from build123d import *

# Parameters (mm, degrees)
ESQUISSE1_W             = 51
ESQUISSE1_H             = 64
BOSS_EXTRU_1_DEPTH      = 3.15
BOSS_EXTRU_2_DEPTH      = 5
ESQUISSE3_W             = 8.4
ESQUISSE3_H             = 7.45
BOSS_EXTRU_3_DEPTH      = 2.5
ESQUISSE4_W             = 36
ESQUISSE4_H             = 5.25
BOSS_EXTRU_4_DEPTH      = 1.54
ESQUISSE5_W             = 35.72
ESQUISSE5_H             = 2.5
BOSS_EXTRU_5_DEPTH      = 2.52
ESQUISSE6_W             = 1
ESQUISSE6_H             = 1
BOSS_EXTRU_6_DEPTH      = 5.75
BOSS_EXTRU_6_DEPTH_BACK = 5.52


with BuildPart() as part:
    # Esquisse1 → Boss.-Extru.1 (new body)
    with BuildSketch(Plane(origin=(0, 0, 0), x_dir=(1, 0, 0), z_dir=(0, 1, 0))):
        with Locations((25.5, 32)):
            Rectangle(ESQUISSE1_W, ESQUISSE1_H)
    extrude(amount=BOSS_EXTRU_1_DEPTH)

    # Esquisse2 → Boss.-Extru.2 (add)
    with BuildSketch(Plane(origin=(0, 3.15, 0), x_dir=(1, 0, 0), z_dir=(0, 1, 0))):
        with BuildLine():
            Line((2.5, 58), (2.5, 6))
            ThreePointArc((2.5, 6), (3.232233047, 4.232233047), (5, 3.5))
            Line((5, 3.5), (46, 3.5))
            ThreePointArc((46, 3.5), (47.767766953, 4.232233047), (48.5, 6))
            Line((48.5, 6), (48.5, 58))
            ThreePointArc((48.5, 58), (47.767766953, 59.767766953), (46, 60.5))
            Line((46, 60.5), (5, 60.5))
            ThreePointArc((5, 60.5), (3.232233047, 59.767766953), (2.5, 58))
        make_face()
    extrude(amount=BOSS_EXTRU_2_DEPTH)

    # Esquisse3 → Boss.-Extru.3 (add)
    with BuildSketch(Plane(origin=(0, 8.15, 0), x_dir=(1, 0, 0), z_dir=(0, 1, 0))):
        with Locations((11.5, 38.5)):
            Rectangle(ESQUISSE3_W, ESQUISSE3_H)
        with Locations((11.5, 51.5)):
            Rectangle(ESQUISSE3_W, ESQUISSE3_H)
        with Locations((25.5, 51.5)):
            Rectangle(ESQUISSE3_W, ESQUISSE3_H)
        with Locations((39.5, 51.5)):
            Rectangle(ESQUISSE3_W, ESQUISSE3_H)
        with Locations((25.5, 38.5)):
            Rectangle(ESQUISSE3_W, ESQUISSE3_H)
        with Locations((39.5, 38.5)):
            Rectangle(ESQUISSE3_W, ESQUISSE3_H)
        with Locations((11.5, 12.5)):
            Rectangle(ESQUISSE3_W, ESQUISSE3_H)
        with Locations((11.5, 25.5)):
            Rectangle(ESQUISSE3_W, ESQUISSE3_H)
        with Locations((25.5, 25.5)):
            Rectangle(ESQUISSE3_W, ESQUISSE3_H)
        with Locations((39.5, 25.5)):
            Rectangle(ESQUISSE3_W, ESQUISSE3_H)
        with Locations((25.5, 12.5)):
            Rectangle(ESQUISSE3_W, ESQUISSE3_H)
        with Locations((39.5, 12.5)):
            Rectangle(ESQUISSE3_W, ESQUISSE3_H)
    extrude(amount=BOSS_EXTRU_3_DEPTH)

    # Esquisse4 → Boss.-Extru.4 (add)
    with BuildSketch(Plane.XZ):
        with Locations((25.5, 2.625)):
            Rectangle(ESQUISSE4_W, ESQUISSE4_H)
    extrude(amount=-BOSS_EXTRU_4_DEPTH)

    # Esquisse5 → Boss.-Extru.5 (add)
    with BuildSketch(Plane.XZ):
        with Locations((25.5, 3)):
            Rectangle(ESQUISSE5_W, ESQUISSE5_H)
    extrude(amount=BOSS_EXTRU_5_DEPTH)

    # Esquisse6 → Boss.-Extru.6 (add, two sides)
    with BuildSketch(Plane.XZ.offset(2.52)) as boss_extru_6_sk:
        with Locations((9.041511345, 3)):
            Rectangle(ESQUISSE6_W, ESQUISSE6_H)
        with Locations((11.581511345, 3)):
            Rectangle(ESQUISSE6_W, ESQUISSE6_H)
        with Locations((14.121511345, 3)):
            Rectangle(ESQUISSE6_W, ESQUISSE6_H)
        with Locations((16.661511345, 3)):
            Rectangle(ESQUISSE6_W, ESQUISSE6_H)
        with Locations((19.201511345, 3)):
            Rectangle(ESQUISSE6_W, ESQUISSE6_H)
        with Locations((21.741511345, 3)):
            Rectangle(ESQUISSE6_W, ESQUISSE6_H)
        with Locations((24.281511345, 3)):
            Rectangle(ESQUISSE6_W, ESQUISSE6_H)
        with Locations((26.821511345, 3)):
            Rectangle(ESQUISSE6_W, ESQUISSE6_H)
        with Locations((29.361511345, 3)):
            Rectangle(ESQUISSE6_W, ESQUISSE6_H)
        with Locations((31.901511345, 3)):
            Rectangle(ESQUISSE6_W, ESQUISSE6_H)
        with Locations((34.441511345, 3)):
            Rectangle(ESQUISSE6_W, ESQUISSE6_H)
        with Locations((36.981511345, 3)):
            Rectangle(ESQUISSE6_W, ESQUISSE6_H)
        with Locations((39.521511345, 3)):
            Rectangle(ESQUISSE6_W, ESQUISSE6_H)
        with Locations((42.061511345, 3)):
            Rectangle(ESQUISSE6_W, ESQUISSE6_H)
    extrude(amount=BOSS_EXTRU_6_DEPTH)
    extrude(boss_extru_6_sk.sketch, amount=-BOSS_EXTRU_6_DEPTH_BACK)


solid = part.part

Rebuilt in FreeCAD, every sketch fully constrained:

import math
import FreeCAD as App
import Part
import Sketcher

V = App.Vector


def add_polygon(sketch, points):
    """Adds a closed chain of lines whose ends are joined by coincident constraints."""
    first, n = sketch.GeometryCount, len(points)
    for a, b in zip(points, points[1:] + points[:1]):
        sketch.addGeometry(Part.LineSegment(App.Vector(*a, 0), App.Vector(*b, 0)), False)
    for i in range(n):
        sketch.addConstraint(Sketcher.Constraint("Coincident", first + i, 2, first + (i + 1) % n, 1))

doc = App.newDocument("Part")
body = doc.addObject("PartDesign::Body", "Body")

# Sketch on XZ plane
sketch1 = body.newObject("Sketcher::SketchObject", "Sketch")
sketch1.AttachmentSupport = (doc.getObject("XZ_Plane"), [""])
sketch1.MapMode = "FlatFace"
add_polygon(sketch1, [(0, -64), (0, 0), (51, 0), (51, -64)])  # lines 0-3
sketch1.addConstraint([
    Sketcher.Constraint("Vertical", 0),
    Sketcher.Constraint("Horizontal", 1),
    Sketcher.Constraint("Vertical", 2),
    Sketcher.Constraint("Horizontal", 3),
    Sketcher.Constraint("Coincident", 0, 2, -1, 1),
    Sketcher.Constraint("DistanceX", 1, 1, 1, 2, 51.0),
    Sketcher.Constraint("DistanceY", 0, 1, 0, 2, 64.0),
])
pad1 = body.newObject("PartDesign::Pad", "Pad")
pad1.Profile = sketch1
pad1.Length = 3.15
pad1.Reversed = True

# Sketch on XZ plane
sketch2 = body.newObject("Sketcher::SketchObject", "Sketch001")
sketch2.AttachmentSupport = (doc.getObject("XZ_Plane"), [""])
sketch2.MapMode = "FlatFace"
sketch2.AttachmentOffset = App.Placement(V(0, 0, -3.15), App.Rotation())
sketch2.addGeometry([
    Part.LineSegment(V(2.5, -58, 0), V(2.5, -6, 0)),  # 0
    Part.ArcOfCircle(Part.Circle(V(5, -6, 0), V(0, 0, 1), 2.5), math.radians(90), math.radians(180)),  # 1
    Part.LineSegment(V(5, -3.5, 0), V(46, -3.5, 0)),  # 2
    Part.ArcOfCircle(Part.Circle(V(46, -6, 0), V(0, 0, 1), 2.5), math.radians(0), math.radians(90)),  # 3
    Part.LineSegment(V(48.5, -6, 0), V(48.5, -58, 0)),  # 4
    Part.ArcOfCircle(Part.Circle(V(46, -58, 0), V(0, 0, 1), 2.5), math.radians(-90), math.radians(0)),  # 5
    Part.LineSegment(V(46, -60.5, 0), V(5, -60.5, 0)),  # 6
    Part.ArcOfCircle(Part.Circle(V(5, -58, 0), V(0, 0, 1), 2.5), math.radians(180), math.radians(270)),  # 7
], False)
sketch2.addConstraint([
    Sketcher.Constraint("Tangent", 0, 2, 1, 2),
    Sketcher.Constraint("Tangent", 1, 1, 2, 1),
    Sketcher.Constraint("Tangent", 2, 2, 3, 2),
    Sketcher.Constraint("Tangent", 3, 1, 4, 1),
    Sketcher.Constraint("Tangent", 4, 2, 5, 2),
    Sketcher.Constraint("Tangent", 5, 1, 6, 1),
    Sketcher.Constraint("Tangent", 6, 2, 7, 2),
    Sketcher.Constraint("Tangent", 7, 1, 0, 1),
    Sketcher.Constraint("Vertical", 0),
    Sketcher.Constraint("Horizontal", 2),
    Sketcher.Constraint("Vertical", 4),
    Sketcher.Constraint("Horizontal", 6),
    Sketcher.Constraint("Equal", 1, 3),
    Sketcher.Constraint("Equal", 3, 5),
    Sketcher.Constraint("Equal", 5, 7),
    Sketcher.Constraint("Radius", 1, 2.5),
    Sketcher.Constraint("DistanceX", 2, 1, 2, 2, 41.0),
    Sketcher.Constraint("DistanceY", 0, 1, 0, 2, 52.0),
    Sketcher.Constraint("DistanceX", -1, 1, 1, 3, 5.0),
    Sketcher.Constraint("DistanceY", 1, 3, -1, 1, 6.0),
])
pad2 = body.newObject("PartDesign::Pad", "Pad001")
pad2.Profile = sketch2
pad2.Length = 5
pad2.Reversed = True

# Sketch on XZ plane
sketch3 = body.newObject("Sketcher::SketchObject", "Sketch002")
sketch3.AttachmentSupport = (doc.getObject("XZ_Plane"), [""])
sketch3.MapMode = "FlatFace"
sketch3.AttachmentOffset = App.Placement(V(0, 0, -8.15), App.Rotation())
add_polygon(sketch3, [(7, -42), (7, -35), (16, -35), (16, -42)])  # lines 0-3
add_polygon(sketch3, [(7, -55), (7, -48), (16, -48), (16, -55)])  # lines 4-7
add_polygon(sketch3, [(21, -55), (21, -48), (30, -48), (30, -55)])  # lines 8-11
add_polygon(sketch3, [(35, -55), (35, -48), (44, -48), (44, -55)])  # lines 12-15
add_polygon(sketch3, [(21, -42), (21, -35), (30, -35), (30, -42)])  # lines 16-19
add_polygon(sketch3, [(35, -42), (35, -35), (44, -35), (44, -42)])  # lines 20-23
add_polygon(sketch3, [(7, -16), (7, -9), (16, -9), (16, -16)])  # lines 24-27
add_polygon(sketch3, [(7, -29), (7, -22), (16, -22), (16, -29)])  # lines 28-31
add_polygon(sketch3, [(21, -29), (21, -22), (30, -22), (30, -29)])  # lines 32-35
add_polygon(sketch3, [(35, -29), (35, -22), (44, -22), (44, -29)])  # lines 36-39
add_polygon(sketch3, [(21, -16), (21, -9), (30, -9), (30, -16)])  # lines 40-43
add_polygon(sketch3, [(35, -16), (35, -9), (44, -9), (44, -16)])  # lines 44-47
sketch3.addConstraint([
    Sketcher.Constraint("Vertical", 0),
    Sketcher.Constraint("Horizontal", 1),
    Sketcher.Constraint("Vertical", 2),
    Sketcher.Constraint("Horizontal", 3),
    Sketcher.Constraint("Vertical", 4),
    Sketcher.Constraint("Horizontal", 5),
    Sketcher.Constraint("Vertical", 6),
    Sketcher.Constraint("Horizontal", 7),
    Sketcher.Constraint("Vertical", 8),
    Sketcher.Constraint("Horizontal", 9),
    Sketcher.Constraint("Vertical", 10),
    Sketcher.Constraint("Horizontal", 11),
    Sketcher.Constraint("Vertical", 12),
    Sketcher.Constraint("Horizontal", 13),
    Sketcher.Constraint("Vertical", 14),
    Sketcher.Constraint("Horizontal", 15),
    Sketcher.Constraint("Vertical", 16),
    Sketcher.Constraint("Horizontal", 17),
    Sketcher.Constraint("Vertical", 18),
    Sketcher.Constraint("Horizontal", 19),
    Sketcher.Constraint("Vertical", 20),
    Sketcher.Constraint("Horizontal", 21),
    Sketcher.Constraint("Vertical", 22),
    Sketcher.Constraint("Horizontal", 23),
    Sketcher.Constraint("Vertical", 24),
    Sketcher.Constraint("Horizontal", 25),
    Sketcher.Constraint("Vertical", 26),
    Sketcher.Constraint("Horizontal", 27),
    Sketcher.Constraint("Vertical", 28),
    Sketcher.Constraint("Horizontal", 29),
    Sketcher.Constraint("Vertical", 30),
    Sketcher.Constraint("Horizontal", 31),
    Sketcher.Constraint("Vertical", 32),
    Sketcher.Constraint("Horizontal", 33),
    Sketcher.Constraint("Vertical", 34),
    Sketcher.Constraint("Horizontal", 35),
    Sketcher.Constraint("Vertical", 36),
    Sketcher.Constraint("Horizontal", 37),
    Sketcher.Constraint("Vertical", 38),
    Sketcher.Constraint("Horizontal", 39),
    Sketcher.Constraint("Vertical", 40),
    Sketcher.Constraint("Horizontal", 41),
    Sketcher.Constraint("Vertical", 42),
    Sketcher.Constraint("Horizontal", 43),
    Sketcher.Constraint("Vertical", 44),
    Sketcher.Constraint("Horizontal", 45),
    Sketcher.Constraint("Vertical", 46),
    Sketcher.Constraint("Horizontal", 47),
    Sketcher.Constraint("Horizontal", 5, 2, 8, 2),
    Sketcher.Constraint("Horizontal", 7, 2, 10, 2),
    Sketcher.Constraint("Horizontal", 9, 2, 12, 2),
    Sketcher.Constraint("Horizontal", 11, 2, 14, 2),
    Sketcher.Constraint("Horizontal", 1, 2, 16, 2),
    Sketcher.Constraint("Horizontal", 3, 2, 18, 2),
    Sketcher.Constraint("Horizontal", 17, 2, 20, 2),
    Sketcher.Constraint("Horizontal", 19, 2, 22, 2),
    Sketcher.Constraint("Horizontal", 29, 2, 32, 2),
    Sketcher.Constraint("Horizontal", 31, 2, 34, 2),
    Sketcher.Constraint("Horizontal", 33, 2, 36, 2),
    Sketcher.Constraint("Horizontal", 35, 2, 38, 2),
    Sketcher.Constraint("Horizontal", 25, 2, 40, 2),
    Sketcher.Constraint("Horizontal", 27, 2, 42, 2),
    Sketcher.Constraint("Horizontal", 41, 2, 44, 2),
    Sketcher.Constraint("Horizontal", 43, 2, 46, 2),
    Sketcher.Constraint("Vertical", 3, 2, 4, 2),
    Sketcher.Constraint("Vertical", 2, 2, 5, 2),
    Sketcher.Constraint("Vertical", 11, 2, 16, 2),
    Sketcher.Constraint("Vertical", 10, 2, 17, 2),
    Sketcher.Constraint("Vertical", 15, 2, 20, 2),
    Sketcher.Constraint("Vertical", 14, 2, 21, 2),
    Sketcher.Constraint("Vertical", 7, 2, 24, 2),
    Sketcher.Constraint("Vertical", 6, 2, 25, 2),
    Sketcher.Constraint("Vertical", 27, 2, 28, 2),
    Sketcher.Constraint("Vertical", 26, 2, 29, 2),
    Sketcher.Constraint("Vertical", 19, 2, 32, 2),
    Sketcher.Constraint("Vertical", 18, 2, 33, 2),
    Sketcher.Constraint("Vertical", 23, 2, 36, 2),
    Sketcher.Constraint("Vertical", 22, 2, 37, 2),
    Sketcher.Constraint("Vertical", 35, 2, 40, 2),
    Sketcher.Constraint("Vertical", 34, 2, 41, 2),
    Sketcher.Constraint("Vertical", 39, 2, 44, 2),
    Sketcher.Constraint("Vertical", 38, 2, 45, 2),
    Sketcher.Constraint("Equal", 7, 9),
    Sketcher.Constraint("Equal", 11, 13),
    Sketcher.Constraint("Equal", 2, 4),
    Sketcher.Constraint("Equal", 22, 24),
    Sketcher.Constraint("Equal", 26, 28),
    Sketcher.Constraint("DistanceX", 1, 1, 1, 2, 8.4),
    Sketcher.Constraint("DistanceY", 4, 2, 0, 2, 13.0),
    Sketcher.Constraint("DistanceX", 4, 2, 8, 2, 14.0),
    Sketcher.Constraint("DistanceX", 8, 2, 12, 2, 14.0),
    Sketcher.Constraint("DistanceY", 0, 2, 24, 2, 26.0),
    Sketcher.Constraint("DistanceY", 28, 2, 24, 2, 13.0),
    Sketcher.Constraint("DistanceY", 0, 1, 0, 2, 7.45),
    Sketcher.Constraint("DistanceX", -1, 1, 0, 2, 7.3),
    Sketcher.Constraint("DistanceY", 0, 2, -1, 1, 34.775),
])
pad3 = body.newObject("PartDesign::Pad", "Pad002")
pad3.Profile = sketch3
pad3.Length = 2.5
pad3.Reversed = True

# Sketch on XZ plane
sketch4 = body.newObject("Sketcher::SketchObject", "Sketch003")
sketch4.AttachmentSupport = (doc.getObject("XZ_Plane"), [""])
sketch4.MapMode = "FlatFace"
add_polygon(sketch4, [(8, 5), (8, 0), (44, 0), (44, 5)])  # lines 0-3
sketch4.addConstraint([
    Sketcher.Constraint("Vertical", 0),
    Sketcher.Constraint("Horizontal", 1),
    Sketcher.Constraint("Vertical", 2),
    Sketcher.Constraint("Horizontal", 3),
    Sketcher.Constraint("PointOnObject", 0, 2, -1),
    Sketcher.Constraint("DistanceX", 1, 1, 1, 2, 36.0),
    Sketcher.Constraint("DistanceY", 0, 2, 0, 1, 5.25),
    Sketcher.Constraint("DistanceX", -1, 1, 0, 2, 7.5),
])
pad4 = body.newObject("PartDesign::Pad", "Pad003")
pad4.Profile = sketch4
pad4.Length = 1.54
pad4.Reversed = True

# Sketch on XZ plane
sketch5 = body.newObject("Sketcher::SketchObject", "Sketch004")
sketch5.AttachmentSupport = (doc.getObject("XZ_Plane"), [""])
sketch5.MapMode = "FlatFace"
add_polygon(sketch5, [(7.6, 4.2), (7.6, 1.8), (43.4, 1.8), (43.4, 4.2)])  # lines 0-3
sketch5.addConstraint([
    Sketcher.Constraint("Vertical", 0),
    Sketcher.Constraint("Horizontal", 1),
    Sketcher.Constraint("Vertical", 2),
    Sketcher.Constraint("Horizontal", 3),
    Sketcher.Constraint("DistanceY", 0, 2, 0, 1, 2.5),
    Sketcher.Constraint("DistanceX", 1, 1, 1, 2, 35.72),
    Sketcher.Constraint("DistanceX", -1, 1, 0, 2, 7.64),
    Sketcher.Constraint("DistanceY", -1, 1, 0, 2, 1.75),
])
pad5 = body.newObject("PartDesign::Pad", "Pad004")
pad5.Profile = sketch5
pad5.Length = 2.52

# Sketch on XZ plane
sketch6 = body.newObject("Sketcher::SketchObject", "Sketch005")
sketch6.AttachmentSupport = (doc.getObject("XZ_Plane"), [""])
sketch6.MapMode = "FlatFace"
sketch6.AttachmentOffset = App.Placement(V(0, 0, 2.52), App.Rotation())
add_polygon(sketch6, [(8.5, 3.5), (8.5, 2.5), (9.5, 2.5), (9.5, 3.5)])  # lines 0-3
add_polygon(sketch6, [(11.1, 3.5), (11.1, 2.5), (12.1, 2.5), (12.1, 3.5)])  # lines 4-7
add_polygon(sketch6, [(13.6, 3.5), (13.6, 2.5), (14.6, 2.5), (14.6, 3.5)])  # lines 8-11
add_polygon(sketch6, [(16.2, 3.5), (16.2, 2.5), (17.2, 2.5), (17.2, 3.5)])  # lines 12-15
add_polygon(sketch6, [(18.7, 3.5), (18.7, 2.5), (19.7, 2.5), (19.7, 3.5)])  # lines 16-19
add_polygon(sketch6, [(21.2, 3.5), (21.2, 2.5), (22.2, 2.5), (22.2, 3.5)])  # lines 20-23
add_polygon(sketch6, [(23.8, 3.5), (23.8, 2.5), (24.8, 2.5), (24.8, 3.5)])  # lines 24-27
add_polygon(sketch6, [(26.3, 3.5), (26.3, 2.5), (27.3, 2.5), (27.3, 3.5)])  # lines 28-31
add_polygon(sketch6, [(28.9, 3.5), (28.9, 2.5), (29.9, 2.5), (29.9, 3.5)])  # lines 32-35
add_polygon(sketch6, [(31.4, 3.5), (31.4, 2.5), (32.4, 2.5), (32.4, 3.5)])  # lines 36-39
add_polygon(sketch6, [(33.9, 3.5), (33.9, 2.5), (34.9, 2.5), (34.9, 3.5)])  # lines 40-43
add_polygon(sketch6, [(36.5, 3.5), (36.5, 2.5), (37.5, 2.5), (37.5, 3.5)])  # lines 44-47
add_polygon(sketch6, [(39, 3.5), (39, 2.5), (40, 2.5), (40, 3.5)])  # lines 48-51
add_polygon(sketch6, [(41.6, 3.5), (41.6, 2.5), (42.6, 2.5), (42.6, 3.5)])  # lines 52-55
sketch6.addConstraint([
    Sketcher.Constraint("Vertical", 0),
    Sketcher.Constraint("Horizontal", 1),
    Sketcher.Constraint("Vertical", 2),
    Sketcher.Constraint("Horizontal", 3),
    Sketcher.Constraint("Vertical", 4),
    Sketcher.Constraint("Horizontal", 5),
    Sketcher.Constraint("Vertical", 6),
    Sketcher.Constraint("Horizontal", 7),
    Sketcher.Constraint("Vertical", 8),
    Sketcher.Constraint("Horizontal", 9),
    Sketcher.Constraint("Vertical", 10),
    Sketcher.Constraint("Horizontal", 11),
    Sketcher.Constraint("Vertical", 12),
    Sketcher.Constraint("Horizontal", 13),
    Sketcher.Constraint("Vertical", 14),
    Sketcher.Constraint("Horizontal", 15),
    Sketcher.Constraint("Vertical", 16),
    Sketcher.Constraint("Horizontal", 17),
    Sketcher.Constraint("Vertical", 18),
    Sketcher.Constraint("Horizontal", 19),
    Sketcher.Constraint("Vertical", 20),
    Sketcher.Constraint("Horizontal", 21),
    Sketcher.Constraint("Vertical", 22),
    Sketcher.Constraint("Horizontal", 23),
    Sketcher.Constraint("Vertical", 24),
    Sketcher.Constraint("Horizontal", 25),
    Sketcher.Constraint("Vertical", 26),
    Sketcher.Constraint("Horizontal", 27),
    Sketcher.Constraint("Vertical", 28),
    Sketcher.Constraint("Horizontal", 29),
    Sketcher.Constraint("Vertical", 30),
    Sketcher.Constraint("Horizontal", 31),
    Sketcher.Constraint("Vertical", 32),
    Sketcher.Constraint("Horizontal", 33),
    Sketcher.Constraint("Vertical", 34),
    Sketcher.Constraint("Horizontal", 35),
    Sketcher.Constraint("Vertical", 36),
    Sketcher.Constraint("Horizontal", 37),
    Sketcher.Constraint("Vertical", 38),
    Sketcher.Constraint("Horizontal", 39),
    Sketcher.Constraint("Vertical", 40),
    Sketcher.Constraint("Horizontal", 41),
    Sketcher.Constraint("Vertical", 42),
    Sketcher.Constraint("Horizontal", 43),
    Sketcher.Constraint("Vertical", 44),
    Sketcher.Constraint("Horizontal", 45),
    Sketcher.Constraint("Vertical", 46),
    Sketcher.Constraint("Horizontal", 47),
    Sketcher.Constraint("Vertical", 48),
    Sketcher.Constraint("Horizontal", 49),
    Sketcher.Constraint("Vertical", 50),
    Sketcher.Constraint("Horizontal", 51),
    Sketcher.Constraint("Vertical", 52),
    Sketcher.Constraint("Horizontal", 53),
    Sketcher.Constraint("Vertical", 54),
    Sketcher.Constraint("Horizontal", 55),
    Sketcher.Constraint("Horizontal", 1, 2, 4, 2),
    Sketcher.Constraint("Horizontal", 3, 2, 6, 2),
    Sketcher.Constraint("Horizontal", 5, 2, 8, 2),
    Sketcher.Constraint("Horizontal", 7, 2, 10, 2),
    Sketcher.Constraint("Horizontal", 9, 2, 12, 2),
    Sketcher.Constraint("Horizontal", 11, 2, 14, 2),
    Sketcher.Constraint("Horizontal", 13, 2, 16, 2),
    Sketcher.Constraint("Horizontal", 15, 2, 18, 2),
    Sketcher.Constraint("Horizontal", 17, 2, 20, 2),
    Sketcher.Constraint("Horizontal", 19, 2, 22, 2),
    Sketcher.Constraint("Horizontal", 21, 2, 24, 2),
    Sketcher.Constraint("Horizontal", 23, 2, 26, 2),
    Sketcher.Constraint("Horizontal", 25, 2, 28, 2),
    Sketcher.Constraint("Horizontal", 27, 2, 30, 2),
    Sketcher.Constraint("Horizontal", 29, 2, 32, 2),
    Sketcher.Constraint("Horizontal", 31, 2, 34, 2),
    Sketcher.Constraint("Horizontal", 33, 2, 36, 2),
    Sketcher.Constraint("Horizontal", 35, 2, 38, 2),
    Sketcher.Constraint("Horizontal", 37, 2, 40, 2),
    Sketcher.Constraint("Horizontal", 39, 2, 42, 2),
    Sketcher.Constraint("Horizontal", 41, 2, 44, 2),
    Sketcher.Constraint("Horizontal", 43, 2, 46, 2),
    Sketcher.Constraint("Horizontal", 45, 2, 48, 2),
    Sketcher.Constraint("Horizontal", 47, 2, 50, 2),
    Sketcher.Constraint("Horizontal", 49, 2, 52, 2),
    Sketcher.Constraint("Horizontal", 51, 2, 54, 2),
    Sketcher.Constraint("Equal", 3, 5),
    Sketcher.Constraint("Equal", 7, 9),
    Sketcher.Constraint("Equal", 11, 13),
    Sketcher.Constraint("Equal", 15, 17),
    Sketcher.Constraint("Equal", 19, 21),
    Sketcher.Constraint("Equal", 23, 25),
    Sketcher.Constraint("Equal", 27, 29),
    Sketcher.Constraint("Equal", 31, 33),
    Sketcher.Constraint("Equal", 35, 37),
    Sketcher.Constraint("Equal", 39, 41),
    Sketcher.Constraint("Equal", 43, 45),
    Sketcher.Constraint("Equal", 47, 49),
    Sketcher.Constraint("Equal", 51, 53),
    Sketcher.Constraint("Equal", 55, 0),
    Sketcher.Constraint("DistanceX", 1, 1, 1, 2, 1.0),
    Sketcher.Constraint("DistanceY", -1, 1, 0, 2, 2.5),
    Sketcher.Constraint("DistanceX", 1, 2, 4, 2, 1.54),
    Sketcher.Constraint("DistanceX", 5, 2, 8, 2, 1.54),
    Sketcher.Constraint("DistanceX", 9, 2, 12, 2, 1.54),
    Sketcher.Constraint("DistanceX", 13, 2, 16, 2, 1.54),
    Sketcher.Constraint("DistanceX", 17, 2, 20, 2, 1.54),
    Sketcher.Constraint("DistanceX", 21, 2, 24, 2, 1.54),
    Sketcher.Constraint("DistanceX", 25, 2, 28, 2, 1.54),
    Sketcher.Constraint("DistanceX", 29, 2, 32, 2, 1.54),
    Sketcher.Constraint("DistanceX", 33, 2, 36, 2, 1.54),
    Sketcher.Constraint("DistanceX", 37, 2, 40, 2, 1.54),
    Sketcher.Constraint("DistanceX", 41, 2, 44, 2, 1.54),
    Sketcher.Constraint("DistanceX", 45, 2, 48, 2, 1.54),
    Sketcher.Constraint("DistanceX", 49, 2, 52, 2, 1.54),
    Sketcher.Constraint("DistanceX", -1, 1, 0, 2, 8.541511),
])
pad6 = body.newObject("PartDesign::Pad", "Pad005")
pad6.Profile = sketch6
pad6.Type = "TwoLengths"
pad6.Length = 5.75
pad6.Length2 = 5.52

doc.recompute()
